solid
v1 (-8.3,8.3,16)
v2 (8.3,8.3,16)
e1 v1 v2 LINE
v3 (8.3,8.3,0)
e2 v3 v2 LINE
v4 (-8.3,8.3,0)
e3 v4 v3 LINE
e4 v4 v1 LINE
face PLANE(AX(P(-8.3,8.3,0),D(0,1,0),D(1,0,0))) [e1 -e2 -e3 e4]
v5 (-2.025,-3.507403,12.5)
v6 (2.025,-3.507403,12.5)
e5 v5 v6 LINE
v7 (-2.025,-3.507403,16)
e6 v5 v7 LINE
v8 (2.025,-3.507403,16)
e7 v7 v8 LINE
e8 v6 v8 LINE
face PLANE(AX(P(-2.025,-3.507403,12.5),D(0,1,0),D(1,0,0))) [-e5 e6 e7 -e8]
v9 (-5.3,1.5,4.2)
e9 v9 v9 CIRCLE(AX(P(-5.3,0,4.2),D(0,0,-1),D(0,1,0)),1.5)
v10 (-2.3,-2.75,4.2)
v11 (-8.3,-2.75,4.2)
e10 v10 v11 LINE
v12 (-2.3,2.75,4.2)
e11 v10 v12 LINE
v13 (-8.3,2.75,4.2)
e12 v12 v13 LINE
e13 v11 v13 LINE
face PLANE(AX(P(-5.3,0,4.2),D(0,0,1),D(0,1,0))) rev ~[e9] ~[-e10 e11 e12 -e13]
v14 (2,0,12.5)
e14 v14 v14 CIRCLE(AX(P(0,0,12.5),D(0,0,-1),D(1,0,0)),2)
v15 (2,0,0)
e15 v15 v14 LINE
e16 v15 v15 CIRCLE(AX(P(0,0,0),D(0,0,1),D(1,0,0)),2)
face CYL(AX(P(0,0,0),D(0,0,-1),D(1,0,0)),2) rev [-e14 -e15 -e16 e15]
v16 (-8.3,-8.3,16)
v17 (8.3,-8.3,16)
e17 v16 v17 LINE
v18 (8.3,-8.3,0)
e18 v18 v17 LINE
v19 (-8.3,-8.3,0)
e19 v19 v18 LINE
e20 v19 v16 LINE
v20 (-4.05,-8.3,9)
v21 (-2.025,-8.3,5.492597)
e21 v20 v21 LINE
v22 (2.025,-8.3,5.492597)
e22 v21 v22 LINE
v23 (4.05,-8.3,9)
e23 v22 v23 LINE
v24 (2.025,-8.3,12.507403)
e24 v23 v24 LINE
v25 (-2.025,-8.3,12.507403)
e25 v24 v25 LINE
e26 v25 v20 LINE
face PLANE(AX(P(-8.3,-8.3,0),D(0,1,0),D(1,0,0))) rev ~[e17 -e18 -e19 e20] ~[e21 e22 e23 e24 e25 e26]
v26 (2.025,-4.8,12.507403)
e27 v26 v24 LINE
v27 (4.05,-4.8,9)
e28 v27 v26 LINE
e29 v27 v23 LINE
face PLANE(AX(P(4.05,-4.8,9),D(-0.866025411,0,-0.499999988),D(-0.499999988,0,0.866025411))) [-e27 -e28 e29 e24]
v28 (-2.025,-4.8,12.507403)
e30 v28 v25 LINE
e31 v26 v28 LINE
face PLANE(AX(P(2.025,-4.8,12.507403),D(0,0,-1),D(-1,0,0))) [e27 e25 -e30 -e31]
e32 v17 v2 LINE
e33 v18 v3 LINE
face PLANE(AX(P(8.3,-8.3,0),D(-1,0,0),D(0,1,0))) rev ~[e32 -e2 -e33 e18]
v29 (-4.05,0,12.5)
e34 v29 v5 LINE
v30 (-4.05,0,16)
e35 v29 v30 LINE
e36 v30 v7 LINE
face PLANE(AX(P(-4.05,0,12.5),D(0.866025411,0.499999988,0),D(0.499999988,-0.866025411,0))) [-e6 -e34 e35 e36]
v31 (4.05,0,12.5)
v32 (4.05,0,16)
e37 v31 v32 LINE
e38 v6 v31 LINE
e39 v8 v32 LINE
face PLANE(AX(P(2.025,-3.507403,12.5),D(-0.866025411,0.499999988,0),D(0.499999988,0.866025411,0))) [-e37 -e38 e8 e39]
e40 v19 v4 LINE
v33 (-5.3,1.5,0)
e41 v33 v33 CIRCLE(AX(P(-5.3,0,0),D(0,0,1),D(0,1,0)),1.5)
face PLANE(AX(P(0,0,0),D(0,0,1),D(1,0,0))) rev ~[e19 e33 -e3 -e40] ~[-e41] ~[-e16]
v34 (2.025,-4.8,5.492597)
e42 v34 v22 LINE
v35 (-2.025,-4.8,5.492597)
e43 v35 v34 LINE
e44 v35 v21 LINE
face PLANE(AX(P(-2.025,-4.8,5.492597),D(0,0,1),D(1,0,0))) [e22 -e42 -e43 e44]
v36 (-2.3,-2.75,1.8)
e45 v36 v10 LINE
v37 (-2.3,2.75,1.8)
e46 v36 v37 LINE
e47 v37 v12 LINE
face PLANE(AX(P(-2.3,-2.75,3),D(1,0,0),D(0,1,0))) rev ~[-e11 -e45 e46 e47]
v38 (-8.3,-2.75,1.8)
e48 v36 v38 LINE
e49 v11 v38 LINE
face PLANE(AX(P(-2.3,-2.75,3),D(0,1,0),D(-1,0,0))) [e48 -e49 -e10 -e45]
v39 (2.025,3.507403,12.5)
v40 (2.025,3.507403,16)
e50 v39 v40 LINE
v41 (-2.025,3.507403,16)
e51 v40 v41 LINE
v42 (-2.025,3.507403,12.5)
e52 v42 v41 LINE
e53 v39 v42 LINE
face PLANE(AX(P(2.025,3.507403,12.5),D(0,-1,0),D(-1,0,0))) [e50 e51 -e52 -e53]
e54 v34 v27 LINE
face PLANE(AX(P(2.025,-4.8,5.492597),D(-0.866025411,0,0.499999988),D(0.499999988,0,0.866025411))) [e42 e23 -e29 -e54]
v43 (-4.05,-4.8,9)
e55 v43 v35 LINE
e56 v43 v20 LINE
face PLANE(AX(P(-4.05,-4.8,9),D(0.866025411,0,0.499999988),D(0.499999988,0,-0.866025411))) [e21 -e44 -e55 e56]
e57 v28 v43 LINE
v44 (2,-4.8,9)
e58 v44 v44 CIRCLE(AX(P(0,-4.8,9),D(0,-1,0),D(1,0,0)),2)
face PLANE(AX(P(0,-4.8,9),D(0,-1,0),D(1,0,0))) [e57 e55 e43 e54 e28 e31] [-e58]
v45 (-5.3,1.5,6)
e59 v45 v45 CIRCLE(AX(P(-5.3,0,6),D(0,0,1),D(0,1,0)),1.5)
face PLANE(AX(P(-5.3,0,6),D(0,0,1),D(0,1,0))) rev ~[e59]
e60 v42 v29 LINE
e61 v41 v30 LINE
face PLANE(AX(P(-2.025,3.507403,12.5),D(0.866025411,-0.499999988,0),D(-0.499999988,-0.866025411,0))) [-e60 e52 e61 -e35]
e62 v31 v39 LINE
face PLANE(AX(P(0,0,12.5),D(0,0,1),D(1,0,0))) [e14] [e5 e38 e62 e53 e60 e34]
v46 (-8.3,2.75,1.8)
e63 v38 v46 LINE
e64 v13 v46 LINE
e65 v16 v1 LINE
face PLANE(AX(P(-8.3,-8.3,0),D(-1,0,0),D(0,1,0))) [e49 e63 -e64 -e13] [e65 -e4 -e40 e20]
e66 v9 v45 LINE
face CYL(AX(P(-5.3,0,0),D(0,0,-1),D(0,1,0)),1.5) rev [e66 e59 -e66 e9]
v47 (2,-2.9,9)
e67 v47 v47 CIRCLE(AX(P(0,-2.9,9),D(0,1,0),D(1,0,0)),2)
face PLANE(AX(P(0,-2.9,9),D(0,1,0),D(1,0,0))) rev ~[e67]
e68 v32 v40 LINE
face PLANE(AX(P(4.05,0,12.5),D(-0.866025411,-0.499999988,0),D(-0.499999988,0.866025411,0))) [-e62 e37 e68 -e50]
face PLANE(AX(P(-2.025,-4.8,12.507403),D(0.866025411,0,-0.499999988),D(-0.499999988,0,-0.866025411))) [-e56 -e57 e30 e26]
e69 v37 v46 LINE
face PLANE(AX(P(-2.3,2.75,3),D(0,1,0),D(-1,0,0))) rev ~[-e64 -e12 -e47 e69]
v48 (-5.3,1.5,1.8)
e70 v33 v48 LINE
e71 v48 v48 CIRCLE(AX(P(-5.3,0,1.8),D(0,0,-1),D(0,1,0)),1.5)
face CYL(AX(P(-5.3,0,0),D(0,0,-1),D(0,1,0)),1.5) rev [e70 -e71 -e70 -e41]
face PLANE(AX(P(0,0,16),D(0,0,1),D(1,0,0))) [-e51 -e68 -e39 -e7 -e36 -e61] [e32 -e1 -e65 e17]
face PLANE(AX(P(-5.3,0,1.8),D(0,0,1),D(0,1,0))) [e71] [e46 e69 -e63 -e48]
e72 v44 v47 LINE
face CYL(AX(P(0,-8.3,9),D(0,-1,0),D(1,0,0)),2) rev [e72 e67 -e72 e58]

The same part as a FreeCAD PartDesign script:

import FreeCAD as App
import Part
import Sketcher

V = App.Vector
Q = App.Units.Quantity

doc = App.newDocument("Part")
body = doc.addObject("PartDesign::Body", "Body")

# Sketch on XY plane
sketch1 = body.newObject("Sketcher::SketchObject", "Sketch")
sketch1.AttachmentSupport = (doc.getObject("XY_Plane"), [""])
sketch1.MapMode = "FlatFace"
sketch1.AttachmentOffset = App.Placement(V(0, 0, -3), App.Rotation())
sketch1.addGeometry(Part.Circle(V(0, 3, 0), V(0, 0, 1), 1.5), False)
sketch1.addConstraint([
    Sketcher.Constraint("PointOnObject", 0, 3, -2),
    Sketcher.Constraint("Diameter", 0, Q("3 mm")),
    Sketcher.Constraint("DistanceY", -1, 1, 0, 3, Q("3 mm")),
])
pad1 = body.newObject("PartDesign::Pad", "Pad")
pad1.Profile = sketch1
pad1.Length = 6
body2 = doc.addObject("PartDesign::Body", "Body001")

# Sketch on XY plane
sketch2 = body2.newObject("Sketcher::SketchObject", "Sketch001")
sketch2.AttachmentSupport = (doc.getObject("XY_Plane001"), [""])
sketch2.MapMode = "FlatFace"
sketch2.addGeometry([
    Part.LineSegment(V(-3, 6, 0), V(-3, 0, 0)),
    Part.LineSegment(V(-3, 0, 0), V(3, 0, 0)),
    Part.LineSegment(V(3, 0, 0), V(3, 6, 0)),
    Part.LineSegment(V(3, 6, 0), V(-3, 6, 0)),
], False)
sketch2.addConstraint([
    Sketcher.Constraint("Coincident", 0, 2, 1, 1),
    Sketcher.Constraint("Coincident", 1, 2, 2, 1),
    Sketcher.Constraint("Coincident", 2, 2, 3, 1),
    Sketcher.Constraint("Coincident", 3, 2, 0, 1),
    Sketcher.Constraint("Vertical", 0),
    Sketcher.Constraint("Horizontal", 1),
    Sketcher.Constraint("Vertical", 2),
    Sketcher.Constraint("Horizontal", 3),
    Sketcher.Constraint("Symmetric", 0, 2, 1, 2, -1, 1),
    Sketcher.Constraint("DistanceY", 0, 2, 0, 1, Q("6 mm")),
    Sketcher.Constraint("DistanceX", 1, 1, 1, 2, Q("5.5 mm")),
])
pad2 = body2.newObject("PartDesign::Pad", "Pad001")
pad2.Profile = sketch2
pad2.Length = 2.4
pad2.Midplane = True
doc.recompute()

boolean = body2.newObject("PartDesign::Boolean", "Boolean")
boolean.Type = "Fuse"
boolean.addObjects([body])
body3 = doc.addObject("PartDesign::Body", "Body002")
doc.recompute()

body2.Placement = App.Placement(V(-2.3, 0, 3), App.Rotation(V(0, 0, 1), 90))
boolean2 = body3.newObject("PartDesign::Boolean", "Boolean001")
boolean2.Type = "Fuse"
boolean2.addObjects([body2])
body4 = doc.addObject("PartDesign::Body", "Body003")

# Sketch on XY plane
sketch3 = body4.newObject("Sketcher::SketchObject", "Sketch002")
sketch3.AttachmentSupport = (doc.getObject("XY_Plane003"), [""])
sketch3.MapMode = "FlatFace"
sketch3.addGeometry([
    Part.LineSegment(V(-4, 0, 0), V(-2, -3.5, 0)),  # 0
    Part.LineSegment(V(-2, -3.5, 0), V(2, -3.5, 0)),  # 1
    Part.LineSegment(V(2, -3.5, 0), V(4, 0, 0)),  # 2
    Part.LineSegment(V(4, 0, 0), V(2, 3.5, 0)),  # 3
    Part.LineSegment(V(2, 3.5, 0), V(-2, 3.5, 0)),  # 4
    Part.LineSegment(V(-2, 3.5, 0), V(-4, 0, 0)),  # 5
], False)
sketch3.addConstraint([
    Sketcher.Constraint("Coincident", 0, 2, 1, 1),
    Sketcher.Constraint("Coincident", 1, 2, 2, 1),
    Sketcher.Constraint("Coincident", 2, 2, 3, 1),
    Sketcher.Constraint("Coincident", 3, 2, 4, 1),
    Sketcher.Constraint("Coincident", 4, 2, 5, 1),
    Sketcher.Constraint("Coincident", 5, 2, 0, 1),
    Sketcher.Constraint("Horizontal", 1),
    Sketcher.Constraint("Horizontal", 4),
    Sketcher.Constraint("Symmetric", 0, 2, 3, 2, -1, 1),
    Sketcher.Constraint("Symmetric", 2, 2, 5, 2, -1, 1),
    Sketcher.Constraint("PointOnObject", 2, 2, -1),
    Sketcher.Constraint("Parallel", 2, 5),
    Sketcher.Constraint("Vertical", 1, 2, 3, 2),
    Sketcher.Constraint("Angle", 0, Q("-60.000001 deg")),
    Sketcher.Constraint("DistanceX", 1, 1, 1, 2, Q("4.05 mm")),
    Sketcher.Constraint("DistanceX", 5, 2, 2, 2, Q("8.1 mm")),
])
pad3 = body4.newObject("PartDesign::Pad", "Pad002")
pad3.Profile = sketch3
pad3.Length = 3.5
body5 = doc.addObject("PartDesign::Body", "Body004")
doc.recompute()

body4.Placement = App.Placement(V(0, -4.8, 9), App.Rotation(V(1, 0, 0), 90))
boolean3 = body5.newObject("PartDesign::Boolean", "Boolean002")
boolean3.Type = "Fuse"
boolean3.addObjects([body4])
body6 = doc.addObject("PartDesign::Body", "Body005")

# Sketch on XY plane
sketch4 = body6.newObject("Sketcher::SketchObject", "Sketch003")
sketch4.AttachmentSupport = (doc.getObject("XY_Plane005"), [""])
sketch4.MapMode = "FlatFace"
sketch4.addGeometry([
    Part.LineSegment(V(-4, 0, 0), V(-2, -3.5, 0)),  # 0
    Part.LineSegment(V(-2, -3.5, 0), V(2, -3.5, 0)),  # 1
    Part.LineSegment(V(2, -3.5, 0), V(4, 0, 0)),  # 2
    Part.LineSegment(V(4, 0, 0), V(2, 3.5, 0)),  # 3
    Part.LineSegment(V(2, 3.5, 0), V(-2, 3.5, 0)),  # 4
    Part.LineSegment(V(-2, 3.5, 0), V(-4, 0, 0)),  # 5
], False)
sketch4.addConstraint([
    Sketcher.Constraint("Coincident", 0, 2, 1, 1),
    Sketcher.Constraint("Coincident", 1, 2, 2, 1),
    Sketcher.Constraint("Coincident", 2, 2, 3, 1),
    Sketcher.Constraint("Coincident", 3, 2, 4, 1),
    Sketcher.Constraint("Coincident", 4, 2, 5, 1),
    Sketcher.Constraint("Coincident", 5, 2, 0, 1),
    Sketcher.Constraint("Horizontal", 1),
    Sketcher.Constraint("Horizontal", 4),
    Sketcher.Constraint("Symmetric", 0, 2, 3, 2, -1, 1),
    Sketcher.Constraint("Symmetric", 2, 2, 5, 2, -1, 1),
    Sketcher.Constraint("PointOnObject", 2, 2, -1),
    Sketcher.Constraint("Parallel", 2, 5),
    Sketcher.Constraint("Vertical", 1, 2, 3, 2),
    Sketcher.Constraint("Angle", 0, Q("-60.000001 deg")),
    Sketcher.Constraint("DistanceX", 1, 1, 1, 2, Q("4.05 mm")),
    Sketcher.Constraint("DistanceX", 5, 2, 2, 2, Q("8.1 mm")),
])
pad4 = body6.newObject("PartDesign::Pad", "Pad003")
pad4.Profile = sketch4
pad4.Length = 3.5
body7 = doc.addObject("PartDesign::Body", "Body006")
doc.recompute()

body6.Placement = App.Placement(V(0, 0, 12.5), App.Rotation(V(0, 0, 1), 0))
boolean4 = body7.newObject("PartDesign::Boolean", "Boolean003")
boolean4.Type = "Fuse"
boolean4.addObjects([body6])
body8 = doc.addObject("PartDesign::Body", "Body007")

# Sketch on XY plane
sketch5 = body8.newObject("Sketcher::SketchObject", "Sketch004")
sketch5.AttachmentSupport = (doc.getObject("XY_Plane007"), [""])
sketch5.MapMode = "FlatFace"
sketch5.addGeometry(Part.Circle(V(0, 0, 0), V(0, 0, 1), 2), False)
sketch5.addConstraint([
    Sketcher.Constraint("Coincident", 0, 3, -1, 1),
    Sketcher.Constraint("Diameter", 0, Q("4 mm")),
])
pad5 = body8.newObject("PartDesign::Pad", "Pad004")
pad5.Profile = sketch5
pad5.Length = 16
body9 = doc.addObject("PartDesign::Body", "Body008")
body9.AllowCompound = True

# Sketch on XZ plane
sketch6 = body9.newObject("Sketcher::SketchObject", "Sketch005")
sketch6.AttachmentSupport = (doc.getObject("XZ_Plane008"), [""])
sketch6.MapMode = "FlatFace"
sketch6.AttachmentOffset = App.Placement(V(0, 0, 8.3), App.Rotation())
sketch6.addGeometry(Part.Circle(V(0, 9, 0), V(0, 0, 1), 2), False)
sketch6.addConstraint([
    Sketcher.Constraint("PointOnObject", 0, 3, -2),
    Sketcher.Constraint("Diameter", 0, Q("4 mm")),
    Sketcher.Constraint("DistanceY", -1, 1, 0, 3, Q("9 mm")),
])
pad6 = body9.newObject("PartDesign::Pad", "Pad005")
pad6.Profile = sketch6
pad6.Length = 5.4
pad6.Reversed = True
doc.recompute()

boolean5 = body9.newObject("PartDesign::Boolean", "Boolean004")
boolean5.Type = "Fuse"
boolean5.addObjects([body3])
doc.recompute()

boolean6 = body9.newObject("PartDesign::Boolean", "Boolean005")
boolean6.Type = "Fuse"
boolean6.addObjects([body5])
doc.recompute()

boolean7 = body9.newObject("PartDesign::Boolean", "Boolean006")
boolean7.Type = "Fuse"
boolean7.addObjects([body7])
doc.recompute()

boolean8 = body9.newObject("PartDesign::Boolean", "Boolean007")
boolean8.Type = "Fuse"
boolean8.addObjects([body8])
body10 = doc.addObject("PartDesign::Body", "Body009")

# Sketch on XY plane
sketch7 = body10.newObject("Sketcher::SketchObject", "Sketch006")
sketch7.AttachmentSupport = (doc.getObject("XY_Plane009"), [""])
sketch7.MapMode = "FlatFace"
sketch7.addGeometry([
    Part.LineSegment(V(-8, 8, 0), V(-8, -8, 0)),
    Part.LineSegment(V(-8, -8, 0), V(8, -8, 0)),
    Part.LineSegment(V(8, -8, 0), V(8, 8, 0)),
    Part.LineSegment(V(8, 8, 0), V(-8, 8, 0)),
], False)
sketch7.addConstraint([
    Sketcher.Constraint("Coincident", 0, 2, 1, 1),
    Sketcher.Constraint("Coincident", 1, 2, 2, 1),
    Sketcher.Constraint("Coincident", 2, 2, 3, 1),
    Sketcher.Constraint("Coincident", 3, 2, 0, 1),
    Sketcher.Constraint("Vertical", 0),
    Sketcher.Constraint("Horizontal", 1),
    Sketcher.Constraint("Vertical", 2),
    Sketcher.Constraint("Horizontal", 3),
    Sketcher.Constraint("Symmetric", 0, 2, 2, 2, -1, 1),
    Sketcher.Constraint("Equal", 3, 0),
    Sketcher.Constraint("DistanceX", 1, 1, 1, 2, Q("16.6 mm")),
])
pad7 = body10.newObject("PartDesign::Pad", "Pad006")
pad7.Profile = sketch7
pad7.Length = 16
doc.recompute()

boolean9 = body10.newObject("PartDesign::Boolean", "Boolean008")
boolean9.Type = "Cut"
boolean9.addObjects([body9])

doc.recompute()
